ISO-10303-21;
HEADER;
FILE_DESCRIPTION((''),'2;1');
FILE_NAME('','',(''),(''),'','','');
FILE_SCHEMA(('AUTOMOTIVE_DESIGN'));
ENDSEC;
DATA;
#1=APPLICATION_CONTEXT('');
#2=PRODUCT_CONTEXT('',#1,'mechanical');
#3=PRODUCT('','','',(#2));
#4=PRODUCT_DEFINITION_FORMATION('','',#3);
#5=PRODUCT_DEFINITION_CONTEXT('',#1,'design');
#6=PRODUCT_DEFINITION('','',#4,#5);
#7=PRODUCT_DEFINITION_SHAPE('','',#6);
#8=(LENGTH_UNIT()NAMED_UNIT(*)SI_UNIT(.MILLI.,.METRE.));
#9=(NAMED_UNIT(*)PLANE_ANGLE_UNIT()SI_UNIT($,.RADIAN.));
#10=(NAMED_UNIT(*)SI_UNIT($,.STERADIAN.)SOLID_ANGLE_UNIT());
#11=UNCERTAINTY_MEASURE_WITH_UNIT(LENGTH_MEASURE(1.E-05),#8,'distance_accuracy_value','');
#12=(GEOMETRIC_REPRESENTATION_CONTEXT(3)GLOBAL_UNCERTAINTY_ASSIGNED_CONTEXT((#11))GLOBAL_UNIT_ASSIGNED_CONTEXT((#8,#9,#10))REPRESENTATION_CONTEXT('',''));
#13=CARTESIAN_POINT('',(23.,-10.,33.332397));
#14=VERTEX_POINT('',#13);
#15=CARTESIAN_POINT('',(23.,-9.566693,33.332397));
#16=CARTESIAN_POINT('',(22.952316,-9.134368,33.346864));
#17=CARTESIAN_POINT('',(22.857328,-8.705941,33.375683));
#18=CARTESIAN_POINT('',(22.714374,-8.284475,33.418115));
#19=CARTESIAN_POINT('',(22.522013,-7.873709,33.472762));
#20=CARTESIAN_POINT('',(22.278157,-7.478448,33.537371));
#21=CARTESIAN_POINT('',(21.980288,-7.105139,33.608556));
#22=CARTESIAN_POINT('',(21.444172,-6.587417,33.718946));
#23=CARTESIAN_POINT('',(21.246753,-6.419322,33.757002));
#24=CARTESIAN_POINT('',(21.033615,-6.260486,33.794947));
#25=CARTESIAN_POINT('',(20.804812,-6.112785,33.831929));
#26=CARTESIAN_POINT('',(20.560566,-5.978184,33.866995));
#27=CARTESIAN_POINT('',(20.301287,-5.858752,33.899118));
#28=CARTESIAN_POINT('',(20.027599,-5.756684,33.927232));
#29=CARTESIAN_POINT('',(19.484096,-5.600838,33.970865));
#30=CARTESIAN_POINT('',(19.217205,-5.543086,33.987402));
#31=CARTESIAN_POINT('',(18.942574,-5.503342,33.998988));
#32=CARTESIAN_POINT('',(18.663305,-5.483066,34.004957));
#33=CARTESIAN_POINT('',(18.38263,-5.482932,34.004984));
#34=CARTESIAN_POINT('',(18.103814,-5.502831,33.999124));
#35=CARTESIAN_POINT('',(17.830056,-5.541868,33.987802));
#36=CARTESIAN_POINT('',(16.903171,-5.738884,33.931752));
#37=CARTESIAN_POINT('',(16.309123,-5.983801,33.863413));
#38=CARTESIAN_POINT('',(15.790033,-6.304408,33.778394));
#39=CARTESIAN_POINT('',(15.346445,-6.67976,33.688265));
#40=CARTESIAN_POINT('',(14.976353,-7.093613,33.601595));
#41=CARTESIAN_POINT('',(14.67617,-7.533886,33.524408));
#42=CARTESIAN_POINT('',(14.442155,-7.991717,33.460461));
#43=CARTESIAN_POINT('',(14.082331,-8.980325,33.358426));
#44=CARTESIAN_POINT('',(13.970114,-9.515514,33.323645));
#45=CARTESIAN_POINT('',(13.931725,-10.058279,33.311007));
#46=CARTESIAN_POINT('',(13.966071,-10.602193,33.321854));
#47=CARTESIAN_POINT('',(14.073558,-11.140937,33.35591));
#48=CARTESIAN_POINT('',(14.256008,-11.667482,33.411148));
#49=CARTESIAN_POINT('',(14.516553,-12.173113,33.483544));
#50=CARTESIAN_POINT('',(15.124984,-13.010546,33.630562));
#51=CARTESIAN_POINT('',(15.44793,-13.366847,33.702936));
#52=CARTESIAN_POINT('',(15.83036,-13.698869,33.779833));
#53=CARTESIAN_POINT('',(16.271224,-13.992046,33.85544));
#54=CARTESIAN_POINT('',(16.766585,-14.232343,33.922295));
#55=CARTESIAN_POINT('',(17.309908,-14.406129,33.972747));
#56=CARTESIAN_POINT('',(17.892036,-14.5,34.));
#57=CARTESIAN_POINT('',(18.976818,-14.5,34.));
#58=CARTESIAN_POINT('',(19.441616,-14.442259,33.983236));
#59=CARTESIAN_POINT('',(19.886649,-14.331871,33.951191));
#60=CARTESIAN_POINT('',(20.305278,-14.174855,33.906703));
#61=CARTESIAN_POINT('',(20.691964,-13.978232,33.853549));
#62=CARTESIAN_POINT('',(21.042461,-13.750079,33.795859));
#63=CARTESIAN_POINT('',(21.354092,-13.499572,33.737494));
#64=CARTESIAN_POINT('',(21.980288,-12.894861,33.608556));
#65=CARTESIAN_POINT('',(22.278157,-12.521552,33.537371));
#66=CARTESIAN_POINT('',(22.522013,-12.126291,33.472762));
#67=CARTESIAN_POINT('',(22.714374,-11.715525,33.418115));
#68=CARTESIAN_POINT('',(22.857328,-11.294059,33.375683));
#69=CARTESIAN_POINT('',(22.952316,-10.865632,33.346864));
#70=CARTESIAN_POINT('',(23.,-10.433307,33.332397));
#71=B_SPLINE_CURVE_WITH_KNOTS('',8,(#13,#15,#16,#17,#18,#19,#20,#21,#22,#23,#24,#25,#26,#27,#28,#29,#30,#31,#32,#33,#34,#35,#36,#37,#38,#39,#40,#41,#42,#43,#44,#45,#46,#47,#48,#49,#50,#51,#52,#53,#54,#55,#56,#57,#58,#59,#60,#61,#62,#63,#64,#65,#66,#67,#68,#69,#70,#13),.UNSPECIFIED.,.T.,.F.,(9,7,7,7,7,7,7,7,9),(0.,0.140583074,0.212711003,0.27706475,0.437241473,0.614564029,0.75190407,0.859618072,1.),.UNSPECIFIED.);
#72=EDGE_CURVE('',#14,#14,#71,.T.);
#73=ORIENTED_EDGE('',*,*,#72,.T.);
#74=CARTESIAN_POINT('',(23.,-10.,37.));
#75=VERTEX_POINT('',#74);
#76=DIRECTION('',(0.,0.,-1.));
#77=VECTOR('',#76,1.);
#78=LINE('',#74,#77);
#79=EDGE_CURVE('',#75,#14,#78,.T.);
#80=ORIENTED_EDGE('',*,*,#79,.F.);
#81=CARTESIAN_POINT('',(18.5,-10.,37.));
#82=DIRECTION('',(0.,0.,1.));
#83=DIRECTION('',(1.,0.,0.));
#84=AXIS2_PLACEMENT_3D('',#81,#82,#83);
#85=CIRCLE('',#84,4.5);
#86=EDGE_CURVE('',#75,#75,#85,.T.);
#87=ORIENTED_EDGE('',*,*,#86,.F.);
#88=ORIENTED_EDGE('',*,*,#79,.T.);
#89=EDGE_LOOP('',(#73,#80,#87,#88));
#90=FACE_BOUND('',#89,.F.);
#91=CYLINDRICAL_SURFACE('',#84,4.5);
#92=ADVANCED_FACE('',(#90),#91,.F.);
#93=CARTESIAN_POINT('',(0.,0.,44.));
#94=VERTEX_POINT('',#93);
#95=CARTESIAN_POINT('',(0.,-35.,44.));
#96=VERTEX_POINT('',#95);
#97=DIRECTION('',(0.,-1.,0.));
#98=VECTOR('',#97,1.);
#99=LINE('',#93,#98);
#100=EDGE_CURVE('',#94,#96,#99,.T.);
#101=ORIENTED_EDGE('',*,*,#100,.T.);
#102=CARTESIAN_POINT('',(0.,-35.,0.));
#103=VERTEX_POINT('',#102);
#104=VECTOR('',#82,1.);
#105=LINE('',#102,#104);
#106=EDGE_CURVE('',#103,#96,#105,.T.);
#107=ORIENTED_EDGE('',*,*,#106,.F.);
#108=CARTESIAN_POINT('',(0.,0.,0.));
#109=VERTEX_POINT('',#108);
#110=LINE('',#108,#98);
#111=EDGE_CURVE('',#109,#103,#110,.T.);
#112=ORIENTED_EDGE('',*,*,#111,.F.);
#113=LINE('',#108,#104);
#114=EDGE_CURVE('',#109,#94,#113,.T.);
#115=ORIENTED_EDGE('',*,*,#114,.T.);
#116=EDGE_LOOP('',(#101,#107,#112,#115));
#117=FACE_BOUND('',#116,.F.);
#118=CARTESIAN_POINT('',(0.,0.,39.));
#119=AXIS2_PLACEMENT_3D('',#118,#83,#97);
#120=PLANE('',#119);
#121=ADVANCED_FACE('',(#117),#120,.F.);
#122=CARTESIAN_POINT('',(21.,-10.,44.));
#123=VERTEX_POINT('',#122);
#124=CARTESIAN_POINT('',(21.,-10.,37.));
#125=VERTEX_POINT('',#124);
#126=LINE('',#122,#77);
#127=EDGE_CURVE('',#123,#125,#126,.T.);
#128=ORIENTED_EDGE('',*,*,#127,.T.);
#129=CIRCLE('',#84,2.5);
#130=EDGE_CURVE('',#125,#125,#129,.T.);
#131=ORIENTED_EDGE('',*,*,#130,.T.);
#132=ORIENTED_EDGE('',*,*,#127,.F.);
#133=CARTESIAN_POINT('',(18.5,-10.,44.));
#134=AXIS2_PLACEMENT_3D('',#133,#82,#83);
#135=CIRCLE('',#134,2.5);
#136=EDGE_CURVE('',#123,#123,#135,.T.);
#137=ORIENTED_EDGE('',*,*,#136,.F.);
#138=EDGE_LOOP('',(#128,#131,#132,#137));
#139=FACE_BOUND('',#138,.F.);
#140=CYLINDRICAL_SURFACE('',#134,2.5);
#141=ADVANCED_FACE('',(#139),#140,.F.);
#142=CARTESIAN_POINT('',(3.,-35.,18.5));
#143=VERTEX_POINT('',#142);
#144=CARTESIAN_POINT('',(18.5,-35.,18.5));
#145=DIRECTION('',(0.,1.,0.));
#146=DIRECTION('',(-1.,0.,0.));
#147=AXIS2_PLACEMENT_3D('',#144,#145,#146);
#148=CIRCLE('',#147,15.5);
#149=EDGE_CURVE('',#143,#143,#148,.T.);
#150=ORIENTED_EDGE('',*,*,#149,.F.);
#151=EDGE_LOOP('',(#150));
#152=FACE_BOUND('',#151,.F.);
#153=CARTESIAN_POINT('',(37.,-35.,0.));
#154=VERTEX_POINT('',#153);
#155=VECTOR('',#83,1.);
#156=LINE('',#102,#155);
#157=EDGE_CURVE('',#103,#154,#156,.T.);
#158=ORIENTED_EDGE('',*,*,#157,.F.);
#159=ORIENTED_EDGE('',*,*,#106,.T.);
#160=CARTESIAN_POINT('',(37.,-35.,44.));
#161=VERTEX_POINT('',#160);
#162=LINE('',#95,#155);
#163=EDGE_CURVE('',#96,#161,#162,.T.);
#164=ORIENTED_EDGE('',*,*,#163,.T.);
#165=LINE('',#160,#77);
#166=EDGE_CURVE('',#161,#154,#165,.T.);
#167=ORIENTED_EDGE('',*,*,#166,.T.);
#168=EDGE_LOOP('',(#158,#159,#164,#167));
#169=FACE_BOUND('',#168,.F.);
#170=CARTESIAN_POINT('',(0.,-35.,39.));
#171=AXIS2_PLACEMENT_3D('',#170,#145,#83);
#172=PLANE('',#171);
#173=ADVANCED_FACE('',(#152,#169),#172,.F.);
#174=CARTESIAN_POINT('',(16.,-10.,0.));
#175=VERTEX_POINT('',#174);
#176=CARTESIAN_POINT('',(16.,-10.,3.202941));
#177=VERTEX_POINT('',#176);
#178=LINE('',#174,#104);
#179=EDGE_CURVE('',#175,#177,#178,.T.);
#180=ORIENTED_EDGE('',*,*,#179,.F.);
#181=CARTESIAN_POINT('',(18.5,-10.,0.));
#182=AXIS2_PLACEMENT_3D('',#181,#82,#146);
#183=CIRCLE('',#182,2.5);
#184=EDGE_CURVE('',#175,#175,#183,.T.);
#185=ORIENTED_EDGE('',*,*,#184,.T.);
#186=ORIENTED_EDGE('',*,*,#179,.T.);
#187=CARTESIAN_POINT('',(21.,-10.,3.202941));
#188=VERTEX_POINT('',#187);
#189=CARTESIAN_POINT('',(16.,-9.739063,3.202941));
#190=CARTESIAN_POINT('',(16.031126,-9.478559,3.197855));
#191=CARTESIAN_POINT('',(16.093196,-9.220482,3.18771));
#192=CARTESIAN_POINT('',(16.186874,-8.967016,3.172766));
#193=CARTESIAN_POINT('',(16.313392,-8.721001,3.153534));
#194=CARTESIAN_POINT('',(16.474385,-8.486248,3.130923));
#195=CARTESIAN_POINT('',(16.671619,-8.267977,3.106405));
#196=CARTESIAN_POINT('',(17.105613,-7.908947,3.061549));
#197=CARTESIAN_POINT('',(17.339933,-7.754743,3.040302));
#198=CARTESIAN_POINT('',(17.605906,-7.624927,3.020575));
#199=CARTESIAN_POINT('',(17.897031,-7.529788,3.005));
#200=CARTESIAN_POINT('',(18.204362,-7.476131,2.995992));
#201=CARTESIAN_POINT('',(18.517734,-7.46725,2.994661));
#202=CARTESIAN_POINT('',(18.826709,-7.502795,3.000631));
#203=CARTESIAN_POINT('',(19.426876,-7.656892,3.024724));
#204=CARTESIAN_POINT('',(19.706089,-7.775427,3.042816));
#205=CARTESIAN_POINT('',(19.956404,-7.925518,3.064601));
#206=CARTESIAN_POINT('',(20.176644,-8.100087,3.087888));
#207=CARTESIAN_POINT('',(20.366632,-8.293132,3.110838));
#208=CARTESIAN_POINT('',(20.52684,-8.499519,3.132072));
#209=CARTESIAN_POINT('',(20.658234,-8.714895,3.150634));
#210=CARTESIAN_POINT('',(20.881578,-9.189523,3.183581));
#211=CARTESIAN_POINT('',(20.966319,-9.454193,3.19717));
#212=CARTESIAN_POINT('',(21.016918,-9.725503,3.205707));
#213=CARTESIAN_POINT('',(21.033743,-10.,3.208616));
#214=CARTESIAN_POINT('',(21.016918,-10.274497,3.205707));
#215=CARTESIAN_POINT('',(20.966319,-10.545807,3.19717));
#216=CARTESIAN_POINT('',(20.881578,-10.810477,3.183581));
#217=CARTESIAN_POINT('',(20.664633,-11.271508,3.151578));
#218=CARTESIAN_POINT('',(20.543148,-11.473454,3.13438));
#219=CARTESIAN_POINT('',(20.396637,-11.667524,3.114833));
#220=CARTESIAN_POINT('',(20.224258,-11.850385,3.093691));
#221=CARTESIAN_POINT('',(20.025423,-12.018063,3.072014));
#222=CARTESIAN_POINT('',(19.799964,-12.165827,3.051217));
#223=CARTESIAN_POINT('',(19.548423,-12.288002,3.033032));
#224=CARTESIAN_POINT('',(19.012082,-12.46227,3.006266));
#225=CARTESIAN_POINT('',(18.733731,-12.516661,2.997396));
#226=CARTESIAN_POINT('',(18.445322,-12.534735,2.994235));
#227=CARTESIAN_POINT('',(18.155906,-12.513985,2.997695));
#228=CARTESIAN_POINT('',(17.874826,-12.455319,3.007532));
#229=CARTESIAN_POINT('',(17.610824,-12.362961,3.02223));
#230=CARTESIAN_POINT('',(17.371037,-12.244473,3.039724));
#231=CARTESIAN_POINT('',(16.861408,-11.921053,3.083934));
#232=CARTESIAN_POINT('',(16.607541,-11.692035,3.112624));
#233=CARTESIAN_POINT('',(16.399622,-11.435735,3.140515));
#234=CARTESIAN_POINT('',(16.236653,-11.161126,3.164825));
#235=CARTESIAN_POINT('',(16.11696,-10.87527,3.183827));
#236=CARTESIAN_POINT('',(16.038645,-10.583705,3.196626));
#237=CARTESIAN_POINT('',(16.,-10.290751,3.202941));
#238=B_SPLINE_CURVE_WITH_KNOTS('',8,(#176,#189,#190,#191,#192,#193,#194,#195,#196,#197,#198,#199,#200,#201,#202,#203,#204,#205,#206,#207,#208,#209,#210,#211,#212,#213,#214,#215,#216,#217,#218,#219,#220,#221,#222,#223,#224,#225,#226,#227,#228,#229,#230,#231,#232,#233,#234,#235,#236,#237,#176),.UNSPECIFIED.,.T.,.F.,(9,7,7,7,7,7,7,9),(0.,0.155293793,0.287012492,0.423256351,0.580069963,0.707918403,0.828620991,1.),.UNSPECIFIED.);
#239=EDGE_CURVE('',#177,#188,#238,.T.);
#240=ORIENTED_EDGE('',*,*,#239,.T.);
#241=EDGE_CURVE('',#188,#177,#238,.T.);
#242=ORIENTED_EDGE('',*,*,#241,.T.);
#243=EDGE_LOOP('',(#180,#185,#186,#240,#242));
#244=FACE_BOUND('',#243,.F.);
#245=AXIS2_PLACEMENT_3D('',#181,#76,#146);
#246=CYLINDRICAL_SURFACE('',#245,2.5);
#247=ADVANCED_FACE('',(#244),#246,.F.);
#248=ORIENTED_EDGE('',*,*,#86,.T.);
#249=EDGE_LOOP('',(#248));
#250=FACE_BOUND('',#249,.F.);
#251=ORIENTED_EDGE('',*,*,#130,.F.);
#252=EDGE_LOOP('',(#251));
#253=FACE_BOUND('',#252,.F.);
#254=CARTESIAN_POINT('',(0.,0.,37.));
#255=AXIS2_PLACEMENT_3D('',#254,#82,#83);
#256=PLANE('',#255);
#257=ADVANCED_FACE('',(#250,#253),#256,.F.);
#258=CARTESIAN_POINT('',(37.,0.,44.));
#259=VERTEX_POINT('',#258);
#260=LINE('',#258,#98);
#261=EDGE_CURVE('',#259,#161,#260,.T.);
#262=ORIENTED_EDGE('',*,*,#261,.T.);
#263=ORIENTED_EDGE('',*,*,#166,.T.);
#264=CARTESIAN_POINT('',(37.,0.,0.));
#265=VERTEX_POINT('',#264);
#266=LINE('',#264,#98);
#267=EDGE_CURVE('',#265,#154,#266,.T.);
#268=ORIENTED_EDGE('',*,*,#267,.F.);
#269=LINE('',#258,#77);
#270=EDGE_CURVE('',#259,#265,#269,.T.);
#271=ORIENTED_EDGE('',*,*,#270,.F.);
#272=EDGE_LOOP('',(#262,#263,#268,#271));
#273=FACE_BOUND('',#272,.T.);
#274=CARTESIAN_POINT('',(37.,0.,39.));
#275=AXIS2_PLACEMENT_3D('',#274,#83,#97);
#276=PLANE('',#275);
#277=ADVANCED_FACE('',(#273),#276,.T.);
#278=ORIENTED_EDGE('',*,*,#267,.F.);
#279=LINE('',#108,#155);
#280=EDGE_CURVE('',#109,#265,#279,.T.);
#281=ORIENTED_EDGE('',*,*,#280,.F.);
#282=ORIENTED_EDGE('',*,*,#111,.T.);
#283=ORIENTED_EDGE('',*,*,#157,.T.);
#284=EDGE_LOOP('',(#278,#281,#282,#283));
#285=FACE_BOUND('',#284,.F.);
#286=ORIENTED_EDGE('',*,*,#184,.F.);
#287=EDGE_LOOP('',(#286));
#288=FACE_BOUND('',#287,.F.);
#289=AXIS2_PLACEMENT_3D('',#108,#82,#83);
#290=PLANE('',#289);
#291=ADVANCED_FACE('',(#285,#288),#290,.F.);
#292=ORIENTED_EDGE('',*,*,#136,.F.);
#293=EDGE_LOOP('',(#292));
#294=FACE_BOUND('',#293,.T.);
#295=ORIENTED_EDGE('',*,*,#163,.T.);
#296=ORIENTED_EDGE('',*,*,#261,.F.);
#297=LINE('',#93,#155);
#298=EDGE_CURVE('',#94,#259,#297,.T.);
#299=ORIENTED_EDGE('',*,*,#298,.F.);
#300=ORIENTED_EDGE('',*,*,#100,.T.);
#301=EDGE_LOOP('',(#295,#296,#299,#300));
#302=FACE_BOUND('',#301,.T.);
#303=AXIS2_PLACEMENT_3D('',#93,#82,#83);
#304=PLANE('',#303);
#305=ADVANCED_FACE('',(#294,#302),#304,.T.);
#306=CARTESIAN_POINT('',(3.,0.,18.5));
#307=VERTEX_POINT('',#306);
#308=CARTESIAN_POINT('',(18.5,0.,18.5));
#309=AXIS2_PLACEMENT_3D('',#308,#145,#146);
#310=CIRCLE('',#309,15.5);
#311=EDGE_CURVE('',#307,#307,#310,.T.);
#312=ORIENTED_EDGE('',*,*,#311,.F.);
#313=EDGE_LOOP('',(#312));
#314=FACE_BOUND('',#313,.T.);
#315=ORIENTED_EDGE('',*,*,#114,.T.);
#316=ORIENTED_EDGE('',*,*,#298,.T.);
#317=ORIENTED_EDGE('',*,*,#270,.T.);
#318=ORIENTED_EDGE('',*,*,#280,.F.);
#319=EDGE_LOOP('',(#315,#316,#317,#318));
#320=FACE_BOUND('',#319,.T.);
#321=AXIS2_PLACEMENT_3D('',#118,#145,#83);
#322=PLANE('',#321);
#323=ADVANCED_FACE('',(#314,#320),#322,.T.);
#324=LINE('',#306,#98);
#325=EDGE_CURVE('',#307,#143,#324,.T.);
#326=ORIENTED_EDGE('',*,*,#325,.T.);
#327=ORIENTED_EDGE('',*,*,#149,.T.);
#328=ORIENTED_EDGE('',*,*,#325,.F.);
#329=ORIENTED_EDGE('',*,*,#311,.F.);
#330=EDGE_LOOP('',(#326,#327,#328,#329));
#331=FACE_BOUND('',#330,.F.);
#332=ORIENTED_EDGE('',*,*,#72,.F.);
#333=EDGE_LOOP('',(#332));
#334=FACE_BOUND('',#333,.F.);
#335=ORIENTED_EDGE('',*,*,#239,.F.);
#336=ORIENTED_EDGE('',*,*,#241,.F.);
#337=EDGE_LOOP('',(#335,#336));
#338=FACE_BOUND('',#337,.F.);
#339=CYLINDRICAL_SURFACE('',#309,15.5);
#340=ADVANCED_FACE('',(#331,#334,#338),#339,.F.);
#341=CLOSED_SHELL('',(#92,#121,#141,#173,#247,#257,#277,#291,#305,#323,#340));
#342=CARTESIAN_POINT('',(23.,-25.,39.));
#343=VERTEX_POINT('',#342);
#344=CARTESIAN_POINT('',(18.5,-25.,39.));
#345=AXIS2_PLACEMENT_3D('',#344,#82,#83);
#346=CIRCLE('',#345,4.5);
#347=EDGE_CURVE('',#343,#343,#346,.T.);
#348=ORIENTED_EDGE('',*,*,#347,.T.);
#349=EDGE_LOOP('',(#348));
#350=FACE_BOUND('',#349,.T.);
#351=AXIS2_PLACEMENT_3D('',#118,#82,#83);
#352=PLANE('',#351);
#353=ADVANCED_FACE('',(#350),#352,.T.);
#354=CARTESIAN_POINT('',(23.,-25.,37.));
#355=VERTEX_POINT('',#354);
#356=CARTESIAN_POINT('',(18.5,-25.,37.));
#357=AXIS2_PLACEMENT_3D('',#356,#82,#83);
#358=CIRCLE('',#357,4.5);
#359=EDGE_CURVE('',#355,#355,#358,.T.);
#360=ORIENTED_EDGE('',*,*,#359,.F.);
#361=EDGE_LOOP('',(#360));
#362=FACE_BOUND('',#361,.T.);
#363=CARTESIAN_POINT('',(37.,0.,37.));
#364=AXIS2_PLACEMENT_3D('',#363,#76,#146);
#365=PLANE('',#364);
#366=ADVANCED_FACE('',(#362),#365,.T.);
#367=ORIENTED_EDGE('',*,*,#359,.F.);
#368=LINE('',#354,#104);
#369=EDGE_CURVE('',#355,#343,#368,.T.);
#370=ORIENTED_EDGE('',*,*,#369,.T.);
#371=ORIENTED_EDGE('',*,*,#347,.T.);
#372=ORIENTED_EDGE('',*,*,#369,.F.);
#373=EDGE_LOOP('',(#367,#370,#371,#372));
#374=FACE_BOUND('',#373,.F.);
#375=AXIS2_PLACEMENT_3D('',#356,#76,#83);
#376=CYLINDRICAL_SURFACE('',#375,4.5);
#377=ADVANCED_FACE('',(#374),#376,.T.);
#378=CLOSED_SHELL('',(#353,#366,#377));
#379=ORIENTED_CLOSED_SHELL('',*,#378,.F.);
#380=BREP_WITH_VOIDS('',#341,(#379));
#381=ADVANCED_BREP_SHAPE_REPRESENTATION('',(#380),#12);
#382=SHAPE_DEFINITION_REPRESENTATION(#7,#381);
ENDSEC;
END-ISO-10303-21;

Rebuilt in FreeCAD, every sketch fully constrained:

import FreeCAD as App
import Part
import Sketcher

V = App.Vector
Q = App.Units.Quantity


def add_polygon(sketch, points):
    """Adds a closed chain of lines whose ends are joined by coincident constraints."""
    first, n = sketch.GeometryCount, len(points)
    for a, b in zip(points, points[1:] + points[:1]):
        sketch.addGeometry(Part.LineSegment(App.Vector(*a, 0), App.Vector(*b, 0)), False)
    for i in range(n):
        sketch.addConstraint(Sketcher.Constraint("Coincident", first + i, 2, first + (i + 1) % n, 1))

doc = App.newDocument("Part")
body = doc.addObject("PartDesign::Body", "Body")

sketch1 = body.newObject("Sketcher::SketchObject", "Sketch")
sketch1.AttachmentSupport = (doc.getObject("XZ_Plane"), [""])
sketch1.MapMode = "FlatFace"
add_polygon(sketch1, [(37, 0), (0, 0), (0, 37), (37, 37)])
sketch1.addGeometry(Part.Circle(V(18, 18, 0), V(0, 0, 1), 16), False)
sketch1.addConstraint(Sketcher.Constraint("Horizontal", 0))
sketch1.addConstraint(Sketcher.Constraint("Vertical", 1))
sketch1.addConstraint(Sketcher.Constraint("Horizontal", 2))
sketch1.addConstraint(Sketcher.Constraint("Vertical", 3))
sketch1.addConstraint(Sketcher.Constraint("Coincident", 0, 2, -1, 1))
sketch1.addConstraint(Sketcher.Constraint("Equal", 2, 1))
sketch1.addConstraint(Sketcher.Constraint("Diameter", 4, Q("31 mm")))
sketch1.addConstraint(Sketcher.Constraint("DistanceX", 0, 2, 0, 1, Q("37 mm")))
sketch1.addConstraint(Sketcher.Constraint("DistanceX", -1, 1, 4, 3, Q("18.5 mm")))
sketch1.addConstraint(Sketcher.Constraint("DistanceY", -1, 1, 4, 3, Q("18.5 mm")))
pad1 = body.newObject("PartDesign::Pad", "Pad")
pad1.Profile = sketch1
pad1.Length = 35

sketch2 = body.newObject("Sketcher::SketchObject", "Sketch001")
sketch2.AttachmentSupport = (doc.getObject("XY_Plane"), [""])
sketch2.MapMode = "FlatFace"
sketch2.AttachmentOffset = App.Placement(V(0, 0, 37), App.Rotation())
sketch2.addGeometry(Part.Circle(V(18.5, -10, 0), V(0, 0, 1), 4.5), False)
sketch2.addConstraint(Sketcher.Constraint("Diameter", 0, Q("9 mm")))
sketch2.addConstraint(Sketcher.Constraint("DistanceX", -1, 1, 0, 3, Q("18.5 mm")))
sketch2.addConstraint(Sketcher.Constraint("DistanceY", 0, 3, -1, 1, Q("10 mm")))
pocket1 = body.newObject("PartDesign::Pocket", "Pocket")
pocket1.Profile = sketch2
pocket1.Length = 5

sketch3 = body.newObject("Sketcher::SketchObject", "Sketch002")
sketch3.AttachmentSupport = (doc.getObject("XY_Plane"), [""])
sketch3.MapMode = "FlatFace"
sketch3.addGeometry(Part.Circle(V(18.5, -10, 0), V(0, 0, 1), 2.5), False)
sketch3.addConstraint(Sketcher.Constraint("Diameter", 0, Q("5 mm")))
sketch3.addConstraint(Sketcher.Constraint("DistanceY", 0, 3, -1, 1, Q("10 mm")))
sketch3.addConstraint(Sketcher.Constraint("DistanceX", -1, 1, 0, 3, Q("18.5 mm")))
pocket2 = body.newObject("PartDesign::Pocket", "Pocket001")
pocket2.Profile = sketch3
pocket2.Length = 5
pocket2.Reversed = True

sketch4 = body.newObject("Sketcher::SketchObject", "Sketch003")
sketch4.AttachmentSupport = (doc.getObject("XY_Plane"), [""])
sketch4.MapMode = "FlatFace"
sketch4.AttachmentOffset = App.Placement(V(0, 0, 37), App.Rotation())
add_polygon(sketch4, [(37, -35), (37, 0), (0, 0), (0, -35)])
sketch4.addGeometry(Part.Circle(V(18.5, -25, 0), V(0, 0, 1), 4.5), False)
sketch4.addConstraint(Sketcher.Constraint("Vertical", 0))
sketch4.addConstraint(Sketcher.Constraint("Horizontal", 1))
sketch4.addConstraint(Sketcher.Constraint("Vertical", 2))
sketch4.addConstraint(Sketcher.Constraint("Horizontal", 3))
sketch4.addConstraint(Sketcher.Constraint("Coincident", 1, 2, -1, 1))
sketch4.addConstraint(Sketcher.Constraint("Diameter", 4, Q("9 mm")))
sketch4.addConstraint(Sketcher.Constraint("DistanceY", 2, 2, 4, 3, Q("10 mm")))
sketch4.addConstraint(Sketcher.Constraint("DistanceX", -1, 1, 4, 3, Q("18.5 mm")))
sketch4.addConstraint(Sketcher.Constraint("DistanceX", 4, 3, 0, 2, Q("18.5 mm")))
sketch4.addConstraint(Sketcher.Constraint("DistanceY", 0, 1, 0, 2, Q("35 mm")))
pad2 = body.newObject("PartDesign::Pad", "Pad001")
pad2.Profile = sketch4
pad2.Length = 2

sketch5 = body.newObject("Sketcher::SketchObject", "Sketch004")
sketch5.AttachmentSupport = (doc.getObject("XY_Plane"), [""])
sketch5.MapMode = "FlatFace"
sketch5.AttachmentOffset = App.Placement(V(0, 0, 39), App.Rotation())
add_polygon(sketch5, [(37, 0), (0, 0), (0, -35), (37, -35)])
sketch5.addConstraint(Sketcher.Constraint("Horizontal", 0))
sketch5.addConstraint(Sketcher.Constraint("Vertical", 1))
sketch5.addConstraint(Sketcher.Constraint("Horizontal", 2))
sketch5.addConstraint(Sketcher.Constraint("Vertical", 3))
sketch5.addConstraint(Sketcher.Constraint("Coincident", 0, 2, -1, 1))
sketch5.addConstraint(Sketcher.Constraint("DistanceX", 0, 2, 0, 1, Q("37 mm")))
sketch5.addConstraint(Sketcher.Constraint("DistanceY", 1, 2, 1, 1, Q("35 mm")))
pad3 = body.newObject("PartDesign::Pad", "Pad002")
pad3.Profile = sketch5
pad3.Length = 5

sketch6 = body.newObject("Sketcher::SketchObject", "Sketch005")
sketch6.AttachmentSupport = (doc.getObject("XY_Plane"), [""])
sketch6.MapMode = "FlatFace"
sketch6.AttachmentOffset = App.Placement(V(0, 0, 44), App.Rotation())
sketch6.addGeometry(Part.Circle(V(18.5, -10, 0), V(0, 0, 1), 2.5), False)
sketch6.addConstraint(Sketcher.Constraint("Diameter", 0, Q("5 mm")))
sketch6.addConstraint(Sketcher.Constraint("DistanceY", 0, 3, -1, 1, Q("10 mm")))
sketch6.addConstraint(Sketcher.Constraint("DistanceX", -1, 1, 0, 3, Q("18.5 mm")))
pocket3 = body.newObject("PartDesign::Pocket", "Pocket002")
pocket3.Profile = sketch6
pocket3.Type = "ThroughAll"

doc.recompute()
